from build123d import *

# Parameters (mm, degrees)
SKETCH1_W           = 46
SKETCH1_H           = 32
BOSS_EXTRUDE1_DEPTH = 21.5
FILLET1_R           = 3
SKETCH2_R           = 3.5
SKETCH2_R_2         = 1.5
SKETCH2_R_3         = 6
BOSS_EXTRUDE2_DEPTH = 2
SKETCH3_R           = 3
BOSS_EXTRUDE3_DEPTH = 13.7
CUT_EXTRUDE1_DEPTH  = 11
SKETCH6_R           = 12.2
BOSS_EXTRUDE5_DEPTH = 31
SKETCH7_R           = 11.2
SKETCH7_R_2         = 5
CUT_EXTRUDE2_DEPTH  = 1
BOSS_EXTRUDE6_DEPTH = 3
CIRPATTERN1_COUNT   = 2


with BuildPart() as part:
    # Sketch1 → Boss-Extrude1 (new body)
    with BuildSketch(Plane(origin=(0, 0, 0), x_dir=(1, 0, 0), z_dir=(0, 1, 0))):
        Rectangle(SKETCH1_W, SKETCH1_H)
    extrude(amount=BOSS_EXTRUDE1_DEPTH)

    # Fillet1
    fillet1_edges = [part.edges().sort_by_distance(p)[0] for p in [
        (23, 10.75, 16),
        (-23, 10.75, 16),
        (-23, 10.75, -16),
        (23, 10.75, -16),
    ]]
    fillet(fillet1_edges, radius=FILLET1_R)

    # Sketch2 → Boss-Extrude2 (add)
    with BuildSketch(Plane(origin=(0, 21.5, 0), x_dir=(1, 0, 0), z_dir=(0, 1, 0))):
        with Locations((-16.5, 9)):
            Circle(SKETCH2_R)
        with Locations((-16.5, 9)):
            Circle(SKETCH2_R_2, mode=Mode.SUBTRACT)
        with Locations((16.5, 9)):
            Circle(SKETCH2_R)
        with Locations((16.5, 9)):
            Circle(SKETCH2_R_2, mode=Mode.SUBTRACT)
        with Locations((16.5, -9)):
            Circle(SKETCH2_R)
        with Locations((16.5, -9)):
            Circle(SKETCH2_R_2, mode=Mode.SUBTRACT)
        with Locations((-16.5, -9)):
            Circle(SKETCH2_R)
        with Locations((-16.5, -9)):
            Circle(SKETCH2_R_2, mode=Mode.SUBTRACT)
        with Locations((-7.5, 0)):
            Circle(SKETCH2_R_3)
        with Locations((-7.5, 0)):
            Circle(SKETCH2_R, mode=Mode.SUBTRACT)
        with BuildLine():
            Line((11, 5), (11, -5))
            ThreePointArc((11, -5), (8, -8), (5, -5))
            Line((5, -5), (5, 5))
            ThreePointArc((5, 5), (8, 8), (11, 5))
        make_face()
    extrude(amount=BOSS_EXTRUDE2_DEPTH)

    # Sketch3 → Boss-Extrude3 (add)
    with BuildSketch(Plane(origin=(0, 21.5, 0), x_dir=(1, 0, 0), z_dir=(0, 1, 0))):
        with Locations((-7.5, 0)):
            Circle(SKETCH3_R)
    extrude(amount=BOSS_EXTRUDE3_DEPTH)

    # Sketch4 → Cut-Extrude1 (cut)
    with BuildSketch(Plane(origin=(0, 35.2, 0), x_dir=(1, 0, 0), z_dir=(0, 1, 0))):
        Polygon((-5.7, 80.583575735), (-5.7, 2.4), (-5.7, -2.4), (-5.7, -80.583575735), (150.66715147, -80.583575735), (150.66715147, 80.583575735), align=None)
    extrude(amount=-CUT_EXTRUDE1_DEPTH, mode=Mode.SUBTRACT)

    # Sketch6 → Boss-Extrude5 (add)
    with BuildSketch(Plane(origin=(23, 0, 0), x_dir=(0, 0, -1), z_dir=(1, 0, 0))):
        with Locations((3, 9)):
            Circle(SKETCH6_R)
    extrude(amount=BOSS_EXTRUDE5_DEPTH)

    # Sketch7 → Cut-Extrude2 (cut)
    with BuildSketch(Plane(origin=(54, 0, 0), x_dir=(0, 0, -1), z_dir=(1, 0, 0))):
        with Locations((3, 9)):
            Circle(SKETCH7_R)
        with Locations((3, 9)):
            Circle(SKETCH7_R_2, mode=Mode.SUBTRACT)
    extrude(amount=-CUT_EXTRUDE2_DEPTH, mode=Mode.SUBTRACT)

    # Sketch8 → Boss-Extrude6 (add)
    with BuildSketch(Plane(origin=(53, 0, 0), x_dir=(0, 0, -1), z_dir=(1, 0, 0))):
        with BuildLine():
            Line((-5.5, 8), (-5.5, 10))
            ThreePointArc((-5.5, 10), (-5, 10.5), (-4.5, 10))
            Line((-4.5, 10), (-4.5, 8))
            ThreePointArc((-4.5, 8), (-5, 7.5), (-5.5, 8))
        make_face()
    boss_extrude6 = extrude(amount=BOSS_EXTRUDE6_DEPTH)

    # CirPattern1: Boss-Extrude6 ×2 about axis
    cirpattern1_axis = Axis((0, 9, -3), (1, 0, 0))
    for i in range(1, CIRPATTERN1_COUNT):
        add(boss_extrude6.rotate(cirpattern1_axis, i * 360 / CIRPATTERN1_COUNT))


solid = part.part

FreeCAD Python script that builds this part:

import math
import FreeCAD as App
import Part
import Sketcher


def edges_at(feature, points):
    """Names of the edges that pass closest to the given points."""
    edges = feature.Shape.Edges
    near = lambda p: min(range(len(edges)), key=lambda i: edges[i].distToShape(Part.Vertex(*p))[0])
    return sorted({f"Edge{near(p) + 1}" for p in points})

doc = App.newDocument("Part")
params = doc.addObject("Spreadsheet::Sheet", "Params")
for row, (alias, value) in enumerate([
    ("sketch1_width", "46 mm"),
    ("sketch1_height", "32 mm"),
    ("pad1_length", "21.5 mm"),
    ("fillet_radius", "3 mm"),
    ("sketch2_diameter", "7 mm"),
    ("sketch2_diameter2", "3 mm"),
    ("sketch2_diameter3", "12 mm"),
    ("sketch2_radius", "3 mm"),
    ("sketch2_height", "10 mm"),
    ("pad2_length", "2 mm"),
    ("sketch3_diameter", "6 mm"),
    ("pad3_length", "13.7 mm"),
    ("pocket1_length", "11 mm"),
    ("sketch5_diameter", "24.4 mm"),
    ("pad4_length", "31 mm"),
    ("sketch6_diameter", "10 mm"),
    ("sketch6_diameter2", "22.4 mm"),
    ("pocket2_length", "1 mm"),
    ("sketch7_radius", "0.5 mm"),
    ("sketch7_width", "2 mm"),
    ("pad5_length", "3 mm"),
], start=1):
    params.set(f"A{row}", alias)
    params.set(f"B{row}", "=" + value)
    params.setAlias(f"B{row}", alias)

body = doc.addObject("PartDesign::Body", "Body")

# Sketch on XZ plane
sketch1 = doc.addObject("Sketcher::SketchObject", "Sketch")
body.addObject(sketch1)
sketch1.AttachmentSupport = (doc.XZ_Plane, [""])
sketch1.MapMode = "FlatFace"
sketch1.addGeometry(Part.LineSegment(App.Vector(-23, -16, 0), App.Vector(-23, 16, 0)), False)
sketch1.addGeometry(Part.LineSegment(App.Vector(-23, 16, 0), App.Vector(23, 16, 0)), False)
sketch1.addGeometry(Part.LineSegment(App.Vector(23, 16, 0), App.Vector(23, -16, 0)), False)
sketch1.addGeometry(Part.LineSegment(App.Vector(23, -16, 0), App.Vector(-23, -16, 0)), False)
sketch1.addConstraint(Sketcher.Constraint("Coincident", 0, 2, 1, 1))
sketch1.addConstraint(Sketcher.Constraint("Coincident", 1, 2, 2, 1))
sketch1.addConstraint(Sketcher.Constraint("Coincident", 2, 2, 3, 1))
sketch1.addConstraint(Sketcher.Constraint("Coincident", 3, 2, 0, 1))
sketch1.addConstraint(Sketcher.Constraint("Vertical", 0))
sketch1.addConstraint(Sketcher.Constraint("Horizontal", 1))
sketch1.addConstraint(Sketcher.Constraint("Vertical", 2))
sketch1.addConstraint(Sketcher.Constraint("Horizontal", 3))
sketch1.addConstraint(Sketcher.Constraint("Symmetric", 0, 2, 2, 2, -1, 1))
sketch1.addConstraint(Sketcher.Constraint("DistanceX", 1, 1, 1, 2, 46.0))
sketch1.addConstraint(Sketcher.Constraint("DistanceY", 0, 1, 0, 2, 32.0))
sketch1.setExpression("Constraints[9]", "Params.sketch1_width")
sketch1.setExpression("Constraints[10]", "Params.sketch1_height")
pad1 = doc.addObject("PartDesign::Pad", "Pad")
body.addObject(pad1)
pad1.Profile = sketch1
pad1.setExpression("Length", "Params.pad1_length")
pad1.Reversed = True
doc.recompute()

fillet = doc.addObject("PartDesign::Fillet", "Fillet")
body.addObject(fillet)
fillet.Base = (pad1, edges_at(pad1, [
    (23, 10.75, 16),
    (-23, 10.75, 16),
    (-23, 10.75, -16),
    (23, 10.75, -16),
]))
fillet.setExpression("Radius", "Params.fillet_radius")

# Sketch on XZ plane
sketch2 = doc.addObject("Sketcher::SketchObject", "Sketch001")
body.addObject(sketch2)
sketch2.AttachmentSupport = (doc.XZ_Plane, [""])
sketch2.MapMode = "FlatFace"
sketch2.AttachmentOffset = App.Placement(App.Vector(0, 0, -21.5), App.Rotation())
sketch2.addGeometry(Part.Circle(App.Vector(-16.5, -9, 0), App.Vector(0, 0, 1), 3.5), False)
sketch2.addGeometry(Part.Circle(App.Vector(-16.5, -9, 0), App.Vector(0, 0, 1), 1.5), False)
sketch2.addGeometry(Part.Circle(App.Vector(16.5, -9, 0), App.Vector(0, 0, 1), 3.5), False)
sketch2.addGeometry(Part.Circle(App.Vector(16.5, -9, 0), App.Vector(0, 0, 1), 1.5), False)
sketch2.addGeometry(Part.Circle(App.Vector(16.5, 9, 0), App.Vector(0, 0, 1), 3.5), False)
sketch2.addGeometry(Part.Circle(App.Vector(16.5, 9, 0), App.Vector(0, 0, 1), 1.5), False)
sketch2.addGeometry(Part.Circle(App.Vector(-16.5, 9, 0), App.Vector(0, 0, 1), 3.5), False)
sketch2.addGeometry(Part.Circle(App.Vector(-16.5, 9, 0), App.Vector(0, 0, 1), 1.5), False)
sketch2.addGeometry(Part.Circle(App.Vector(-7.5, 0, 0), App.Vector(0, 0, 1), 6), False)
sketch2.addGeometry(Part.Circle(App.Vector(-7.5, 0, 0), App.Vector(0, 0, 1), 3.5), False)
sketch2.addGeometry(Part.LineSegment(App.Vector(11, 5, 0), App.Vector(11, -5, 0)), False)
sketch2.addGeometry(Part.ArcOfCircle(Part.Circle(App.Vector(8, -5, 0), App.Vector(0, 0, 1), 3), math.radians(180), math.radians(360)), False)
sketch2.addGeometry(Part.LineSegment(App.Vector(5, -5, 0), App.Vector(5, 5, 0)), False)
sketch2.addGeometry(Part.ArcOfCircle(Part.Circle(App.Vector(8, 5, 0), App.Vector(0, 0, 1), 3), math.radians(0), math.radians(180)), False)
sketch2.addConstraint(Sketcher.Constraint("Tangent", 10, 2, 11, 2))
sketch2.addConstraint(Sketcher.Constraint("Tangent", 11, 1, 12, 1))
sketch2.addConstraint(Sketcher.Constraint("Tangent", 12, 2, 13, 2))
sketch2.addConstraint(Sketcher.Constraint("Tangent", 13, 1, 10, 1))
sketch2.addConstraint(Sketcher.Constraint("Vertical", 10))
sketch2.addConstraint(Sketcher.Constraint("Vertical", 12))
sketch2.addConstraint(Sketcher.Constraint("Coincident", 1, 3, 0, 3))
sketch2.addConstraint(Sketcher.Constraint("Coincident", 3, 3, 2, 3))
sketch2.addConstraint(Sketcher.Constraint("Coincident", 5, 3, 4, 3))
sketch2.addConstraint(Sketcher.Constraint("Coincident", 7, 3, 6, 3))
sketch2.addConstraint(Sketcher.Constraint("Coincident", 9, 3, 8, 3))
sketch2.addConstraint(Sketcher.Constraint("Equal", 0, 2))
sketch2.addConstraint(Sketcher.Constraint("Equal", 1, 3))
sketch2.addConstraint(Sketcher.Constraint("Equal", 2, 4))
sketch2.addConstraint(Sketcher.Constraint("Equal", 3, 5))
sketch2.addConstraint(Sketcher.Constraint("Equal", 4, 6))
sketch2.addConstraint(Sketcher.Constraint("Equal", 5, 7))
sketch2.addConstraint(Sketcher.Constraint("Equal", 6, 9))
sketch2.addConstraint(Sketcher.Constraint("Symmetric", 0, 3, 4, 3, -1, 1))
sketch2.addConstraint(Sketcher.Constraint("Symmetric", 2, 3, 6, 3, -1, 1))
sketch2.addConstraint(Sketcher.Constraint("Symmetric", 0, 3, 2, 3, -2))
sketch2.addConstraint(Sketcher.Constraint("PointOnObject", 8, 3, -1))
sketch2.addConstraint(Sketcher.Constraint("Diameter", 0, 7.0))
sketch2.addConstraint(Sketcher.Constraint("Diameter", 1, 3.0))
sketch2.addConstraint(Sketcher.Constraint("Diameter", 8, 12.0))
sketch2.addConstraint(Sketcher.Constraint("Radius", 11, 3.0))
sketch2.addConstraint(Sketcher.Constraint("DistanceY", 10, 2, 10, 1, 10.0))
sketch2.addConstraint(Sketcher.Constraint("DistanceY", 0, 3, -1, 1, 9.0))
sketch2.addConstraint(Sketcher.Constraint("DistanceX", -1, 1, 11, 3, 8.0))
sketch2.addConstraint(Sketcher.Constraint("DistanceY", 11, 3, -1, 1, 5.0))
sketch2.addConstraint(Sketcher.Constraint("DistanceX", 0, 3, 2, 3, 33.0))
sketch2.addConstraint(Sketcher.Constraint("DistanceX", 0, 3, 8, 3, 9.0))
sketch2.setExpression("Constraints[22]", "Params.sketch2_diameter")
sketch2.setExpression("Constraints[23]", "Params.sketch2_diameter2")
sketch2.setExpression("Constraints[24]", "Params.sketch2_diameter3")
sketch2.setExpression("Constraints[25]", "Params.sketch2_radius")
sketch2.setExpression("Constraints[26]", "Params.sketch2_height")
pad2 = doc.addObject("PartDesign::Pad", "Pad001")
body.addObject(pad2)
pad2.Profile = sketch2
pad2.setExpression("Length", "Params.pad2_length")
pad2.Reversed = True

# Sketch on XZ plane
sketch3 = doc.addObject("Sketcher::SketchObject", "Sketch002")
body.addObject(sketch3)
sketch3.AttachmentSupport = (doc.XZ_Plane, [""])
sketch3.MapMode = "FlatFace"
sketch3.AttachmentOffset = App.Placement(App.Vector(0, 0, -21.5), App.Rotation())
sketch3.addGeometry(Part.Circle(App.Vector(-7.5, 0, 0), App.Vector(0, 0, 1), 3), False)
sketch3.addConstraint(Sketcher.Constraint("PointOnObject", 0, 3, -1))
sketch3.addConstraint(Sketcher.Constraint("Diameter", 0, 6.0))
sketch3.addConstraint(Sketcher.Constraint("DistanceX", 0, 3, -1, 1, 7.5))
sketch3.setExpression("Constraints[1]", "Params.sketch3_diameter")
pad3 = doc.addObject("PartDesign::Pad", "Pad002")
body.addObject(pad3)
pad3.Profile = sketch3
pad3.setExpression("Length", "Params.pad3_length")
pad3.Reversed = True

# Sketch on XZ plane
sketch4 = doc.addObject("Sketcher::SketchObject", "Sketch003")
body.addObject(sketch4)
sketch4.AttachmentSupport = (doc.XZ_Plane, [""])
sketch4.MapMode = "FlatFace"
sketch4.AttachmentOffset = App.Placement(App.Vector(0, 0, -35.2), App.Rotation())
sketch4.addGeometry(Part.LineSegment(App.Vector(-6, -81, 0), App.Vector(-6, 81, 0)), False)
sketch4.addGeometry(Part.LineSegment(App.Vector(-6, 81, 0), App.Vector(151, 81, 0)), False)
sketch4.addGeometry(Part.LineSegment(App.Vector(151, 81, 0), App.Vector(151, -81, 0)), False)
sketch4.addGeometry(Part.LineSegment(App.Vector(151, -81, 0), App.Vector(-6, -81, 0)), False)
sketch4.addConstraint(Sketcher.Constraint("Coincident", 0, 2, 1, 1))
sketch4.addConstraint(Sketcher.Constraint("Coincident", 1, 2, 2, 1))
sketch4.addConstraint(Sketcher.Constraint("Coincident", 2, 2, 3, 1))
sketch4.addConstraint(Sketcher.Constraint("Coincident", 3, 2, 0, 1))
sketch4.addConstraint(Sketcher.Constraint("Vertical", 0))
sketch4.addConstraint(Sketcher.Constraint("Horizontal", 1))
sketch4.addConstraint(Sketcher.Constraint("Vertical", 2))
sketch4.addConstraint(Sketcher.Constraint("Horizontal", 3))
sketch4.addConstraint(Sketcher.Constraint("DistanceX", 0, 2, -1, 1, 5.7))
sketch4.addConstraint(Sketcher.Constraint("DistanceX", 1, 1, 1, 2, 156.367151))
sketch4.addConstraint(Sketcher.Constraint("DistanceY", 0, 1, 0, 2, 161.167151))
sketch4.addConstraint(Sketcher.Constraint("DistanceY", -1, 1, 0, 2, 80.583576))
pocket1 = doc.addObject("PartDesign::Pocket", "Pocket")
body.addObject(pocket1)
pocket1.Profile = sketch4
pocket1.setExpression("Length", "Params.pocket1_length")
pocket1.Reversed = True

# Sketch on YZ plane
sketch5 = doc.addObject("Sketcher::SketchObject", "Sketch004")
body.addObject(sketch5)
sketch5.AttachmentSupport = (doc.YZ_Plane, [""])
sketch5.MapMode = "FlatFace"
sketch5.AttachmentOffset = App.Placement(App.Vector(0, 0, 23), App.Rotation())
sketch5.addGeometry(Part.Circle(App.Vector(9, -3, 0), App.Vector(0, 0, 1), 12), False)
sketch5.addConstraint(Sketcher.Constraint("Diameter", 0, 24.4))
sketch5.addConstraint(Sketcher.Constraint("DistanceX", -1, 1, 0, 3, 9.0))
sketch5.addConstraint(Sketcher.Constraint("DistanceY", 0, 3, -1, 1, 3.0))
sketch5.setExpression("Constraints[0]", "Params.sketch5_diameter")
pad4 = doc.addObject("PartDesign::Pad", "Pad003")
body.addObject(pad4)
pad4.Profile = sketch5
pad4.setExpression("Length", "Params.pad4_length")

# Sketch on YZ plane
sketch6 = doc.addObject("Sketcher::SketchObject", "Sketch005")
body.addObject(sketch6)
sketch6.AttachmentSupport = (doc.YZ_Plane, [""])
sketch6.MapMode = "FlatFace"
sketch6.AttachmentOffset = App.Placement(App.Vector(0, 0, 54), App.Rotation())
sketch6.addGeometry(Part.Circle(App.Vector(9, -3, 0), App.Vector(0, 0, 1), 11), False)
sketch6.addGeometry(Part.Circle(App.Vector(9, -3, 0), App.Vector(0, 0, 1), 5), False)
sketch6.addConstraint(Sketcher.Constraint("Coincident", 1, 3, 0, 3))
sketch6.addConstraint(Sketcher.Constraint("Diameter", 1, 10.0))
sketch6.addConstraint(Sketcher.Constraint("Diameter", 0, 22.4))
sketch6.addConstraint(Sketcher.Constraint("DistanceX", -1, 1, 0, 3, 9.0))
sketch6.addConstraint(Sketcher.Constraint("DistanceY", 0, 3, -1, 1, 3.0))
sketch6.setExpression("Constraints[1]", "Params.sketch6_diameter")
sketch6.setExpression("Constraints[2]", "Params.sketch6_diameter2")
pocket2 = doc.addObject("PartDesign::Pocket", "Pocket001")
body.addObject(pocket2)
pocket2.Profile = sketch6
pocket2.setExpression("Length", "Params.pocket2_length")

# Sketch on YZ plane
sketch7 = doc.addObject("Sketcher::SketchObject", "Sketch006")
body.addObject(sketch7)
sketch7.AttachmentSupport = (doc.YZ_Plane, [""])
sketch7.MapMode = "FlatFace"
sketch7.AttachmentOffset = App.Placement(App.Vector(0, 0, 53), App.Rotation())
sketch7.addGeometry(Part.LineSegment(App.Vector(10, 5.5, 0), App.Vector(8, 5.5, 0)), False)
sketch7.addGeometry(Part.ArcOfCircle(Part.Circle(App.Vector(8, 5, 0), App.Vector(0, 0, 1), 0.5), math.radians(90), math.radians(270)), False)
sketch7.addGeometry(Part.LineSegment(App.Vector(8, 4.5, 0), App.Vector(10, 4.5, 0)), False)
sketch7.addGeometry(Part.ArcOfCircle(Part.Circle(App.Vector(10, 5, 0), App.Vector(0, 0, 1), 0.5), math.radians(-90), math.radians(90)), False)
sketch7.addConstraint(Sketcher.Constraint("Tangent", 0, 2, 1, 1))
sketch7.addConstraint(Sketcher.Constraint("Tangent", 1, 2, 2, 1))
sketch7.addConstraint(Sketcher.Constraint("Tangent", 2, 2, 3, 1))
sketch7.addConstraint(Sketcher.Constraint("Tangent", 3, 2, 0, 1))
sketch7.addConstraint(Sketcher.Constraint("Horizontal", 0))
sketch7.addConstraint(Sketcher.Constraint("Horizontal", 2))
sketch7.addConstraint(Sketcher.Constraint("Radius", 1, 0.5))
sketch7.addConstraint(Sketcher.Constraint("DistanceX", 0, 2, 0, 1, 2.0))
sketch7.addConstraint(Sketcher.Constraint("DistanceX", -1, 1, 1, 3, 8.0))
sketch7.addConstraint(Sketcher.Constraint("DistanceY", -1, 1, 1, 3, 5.0))
sketch7.setExpression("Constraints[6]", "Params.sketch7_radius")
sketch7.setExpression("Constraints[7]", "Params.sketch7_width")
pad5 = doc.addObject("PartDesign::Pad", "Pad004")
body.addObject(pad5)
pad5.Profile = sketch7
pad5.setExpression("Length", "Params.pad5_length")
doc.recompute()

datumline = doc.addObject("PartDesign::Line", "DatumLine")
body.addObject(datumline)
datumline.Placement = App.Placement(App.Vector(0, 9, -3), App.Rotation(App.Vector(0, 0, 1), App.Vector(1, 0, 0)))
polarpattern = doc.addObject("PartDesign::PolarPattern", "PolarPattern")
body.addObject(polarpattern)
polarpattern.Originals = [pad5]
polarpattern.Axis = (datumline, [""])
polarpattern.Angle = 360
polarpattern.Occurrences = 2
body.Tip = polarpattern

doc.recompute()
